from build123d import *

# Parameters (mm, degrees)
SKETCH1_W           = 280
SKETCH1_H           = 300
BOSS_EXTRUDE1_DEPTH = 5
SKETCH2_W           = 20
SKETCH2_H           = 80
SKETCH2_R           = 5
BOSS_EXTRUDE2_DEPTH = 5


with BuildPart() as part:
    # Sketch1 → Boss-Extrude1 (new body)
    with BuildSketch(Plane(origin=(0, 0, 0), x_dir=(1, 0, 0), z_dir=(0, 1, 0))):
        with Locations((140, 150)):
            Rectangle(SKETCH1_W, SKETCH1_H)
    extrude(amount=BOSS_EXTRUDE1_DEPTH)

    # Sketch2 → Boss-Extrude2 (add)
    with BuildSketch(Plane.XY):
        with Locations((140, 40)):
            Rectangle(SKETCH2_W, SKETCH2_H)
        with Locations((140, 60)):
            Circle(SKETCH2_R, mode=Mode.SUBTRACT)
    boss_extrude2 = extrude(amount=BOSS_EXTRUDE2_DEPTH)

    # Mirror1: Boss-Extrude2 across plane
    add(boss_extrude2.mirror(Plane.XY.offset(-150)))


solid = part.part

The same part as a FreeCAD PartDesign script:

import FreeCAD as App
import Part
import Sketcher

V = App.Vector

doc = App.newDocument("Part")
params = doc.addObject("Spreadsheet::Sheet", "Params")
for row, (alias, value) in enumerate([
    ("sketch1_width", "280 mm"),
    ("sketch1_height", "300 mm"),
    ("pad1_length", "5 mm"),
    ("sketch2_diameter", "10 mm"),
    ("sketch2_width", "20 mm"),
    ("sketch2_height", "80 mm"),
    ("pad2_length", "5 mm"),
], start=1):
    params.set(f"A{row}", alias)
    params.set(f"B{row}", "=" + value)
    params.setAlias(f"B{row}", alias)

body = doc.addObject("PartDesign::Body", "Body")

# Sketch on XZ plane
sketch1 = body.newObject("Sketcher::SketchObject", "Sketch")
sketch1.AttachmentSupport = (doc.getObject("XZ_Plane"), [""])
sketch1.MapMode = "FlatFace"
sketch1.addGeometry([
    Part.LineSegment(V(0, -300, 0), V(0, 0, 0)),
    Part.LineSegment(V(0, 0, 0), V(280, 0, 0)),
    Part.LineSegment(V(280, 0, 0), V(280, -300, 0)),
    Part.LineSegment(V(280, -300, 0), V(0, -300, 0)),
], False)
sketch1.addConstraint([
    Sketcher.Constraint("Coincident", 0, 2, 1, 1),
    Sketcher.Constraint("Coincident", 1, 2, 2, 1),
    Sketcher.Constraint("Coincident", 2, 2, 3, 1),
    Sketcher.Constraint("Coincident", 3, 2, 0, 1),
    Sketcher.Constraint("Vertical", 0),
    Sketcher.Constraint("Horizontal", 1),
    Sketcher.Constraint("Vertical", 2),
    Sketcher.Constraint("Horizontal", 3),
    Sketcher.Constraint("Coincident", 0, 2, -1, 1),
    Sketcher.Constraint("DistanceX", 1, 1, 1, 2, 280.0),
    Sketcher.Constraint("DistanceY", 0, 1, 0, 2, 300.0),
])
sketch1.setExpression("Constraints[9]", "Params.sketch1_width")
sketch1.setExpression("Constraints[10]", "Params.sketch1_height")
pad1 = body.newObject("PartDesign::Pad", "Pad")
pad1.Profile = sketch1
pad1.setExpression("Length", "Params.pad1_length")
pad1.Reversed = True

# Sketch on XY plane
sketch2 = body.newObject("Sketcher::SketchObject", "Sketch001")
sketch2.AttachmentSupport = (doc.getObject("XY_Plane"), [""])
sketch2.MapMode = "FlatFace"
sketch2.addGeometry([
    Part.LineSegment(V(130, 80, 0), V(130, 0, 0)),  # 0
    Part.LineSegment(V(130, 0, 0), V(150, 0, 0)),  # 1
    Part.LineSegment(V(150, 0, 0), V(150, 80, 0)),  # 2
    Part.LineSegment(V(150, 80, 0), V(130, 80, 0)),  # 3
    Part.Circle(V(140, 60, 0), V(0, 0, 1), 5),  # 4
], False)
sketch2.addConstraint([
    Sketcher.Constraint("Coincident", 0, 2, 1, 1),
    Sketcher.Constraint("Coincident", 1, 2, 2, 1),
    Sketcher.Constraint("Coincident", 2, 2, 3, 1),
    Sketcher.Constraint("Coincident", 3, 2, 0, 1),
    Sketcher.Constraint("Vertical", 0),
    Sketcher.Constraint("Horizontal", 1),
    Sketcher.Constraint("Vertical", 2),
    Sketcher.Constraint("Horizontal", 3),
    Sketcher.Constraint("PointOnObject", 0, 2, -1),
    Sketcher.Constraint("Diameter", 4, 10.0),
    Sketcher.Constraint("DistanceX", 1, 1, 1, 2, 20.0),
    Sketcher.Constraint("DistanceY", 0, 2, 0, 1, 80.0),
    Sketcher.Constraint("DistanceX", -1, 1, 4, 3, 140.0),
    Sketcher.Constraint("DistanceY", -1, 1, 4, 3, 60.0),
    Sketcher.Constraint("DistanceX", -1, 1, 0, 2, 130.0),
])
sketch2.setExpression("Constraints[9]", "Params.sketch2_diameter")
sketch2.setExpression("Constraints[10]", "Params.sketch2_width")
sketch2.setExpression("Constraints[11]", "Params.sketch2_height")
pad2 = body.newObject("PartDesign::Pad", "Pad001")
pad2.Profile = sketch2
pad2.setExpression("Length", "Params.pad2_length")
doc.recompute()

datumplane = body.newObject("PartDesign::Plane", "DatumPlane")
datumplane.AttachmentSupport = (doc.getObject("XY_Plane"), [""])
datumplane.MapMode = "FlatFace"
datumplane.AttachmentOffset = App.Placement(V(0, 0, -150), App.Rotation())
mirrored = body.newObject("PartDesign::Mirrored", "Mirrored")
mirrored.Originals = [pad2]
mirrored.MirrorPlane = (datumplane, [""])
body.Tip = mirrored

doc.recompute()
